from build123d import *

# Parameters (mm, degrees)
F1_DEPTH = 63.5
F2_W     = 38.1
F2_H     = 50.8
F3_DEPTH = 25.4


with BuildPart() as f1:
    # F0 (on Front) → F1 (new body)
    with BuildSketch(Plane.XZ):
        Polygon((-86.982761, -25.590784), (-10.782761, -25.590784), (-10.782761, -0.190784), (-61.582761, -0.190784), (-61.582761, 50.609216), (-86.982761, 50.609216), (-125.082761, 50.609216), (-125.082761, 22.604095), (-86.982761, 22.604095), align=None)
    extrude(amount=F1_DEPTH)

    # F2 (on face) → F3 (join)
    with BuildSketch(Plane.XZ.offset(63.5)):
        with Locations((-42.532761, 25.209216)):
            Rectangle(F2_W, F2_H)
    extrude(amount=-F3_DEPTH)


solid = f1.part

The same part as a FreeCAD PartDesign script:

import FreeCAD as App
import Part
import Sketcher

V = App.Vector
Q = App.Units.Quantity

doc = App.newDocument("Part")
body = doc.addObject("PartDesign::Body", "Body")

# Sketch on XZ plane
sketch1 = body.newObject("Sketcher::SketchObject", "Sketch")
sketch1.AttachmentSupport = (doc.getObject("XZ_Plane"), [""])
sketch1.MapMode = "FlatFace"
sketch1.addGeometry([
    Part.LineSegment(V(-87, -26, 0), V(-11, -26, 0)),  # 0
    Part.LineSegment(V(-11, -26, 0), V(-11, 0, 0)),  # 1
    Part.LineSegment(V(-11, 0, 0), V(-62, 0, 0)),  # 2
    Part.LineSegment(V(-62, 0, 0), V(-62, 51, 0)),  # 3
    Part.LineSegment(V(-62, 51, 0), V(-125, 51, 0)),  # 4
    Part.LineSegment(V(-125, 51, 0), V(-125, 23, 0)),  # 5
    Part.LineSegment(V(-125, 23, 0), V(-87, 23, 0)),  # 6
    Part.LineSegment(V(-87, 23, 0), V(-87, -26, 0)),  # 7
], False)
sketch1.addConstraint([
    Sketcher.Constraint("Coincident", 0, 2, 1, 1),
    Sketcher.Constraint("Coincident", 1, 2, 2, 1),
    Sketcher.Constraint("Coincident", 2, 2, 3, 1),
    Sketcher.Constraint("Coincident", 3, 2, 4, 1),
    Sketcher.Constraint("Coincident", 4, 2, 5, 1),
    Sketcher.Constraint("Coincident", 5, 2, 6, 1),
    Sketcher.Constraint("Coincident", 6, 2, 7, 1),
    Sketcher.Constraint("Coincident", 7, 2, 0, 1),
    Sketcher.Constraint("Horizontal", 0),
    Sketcher.Constraint("Vertical", 1),
    Sketcher.Constraint("Horizontal", 2),
    Sketcher.Constraint("Vertical", 3),
    Sketcher.Constraint("Horizontal", 4),
    Sketcher.Constraint("Vertical", 5),
    Sketcher.Constraint("Horizontal", 6),
    Sketcher.Constraint("Vertical", 7),
    Sketcher.Constraint("Equal", 2, 3),
    Sketcher.Constraint("DistanceX", 0, 1, 0, 2, Q("3 in")),
    Sketcher.Constraint("DistanceX", 2, 2, 2, 1, Q("2 in")),
    Sketcher.Constraint("DistanceY", 1, 1, 1, 2, Q("1 in")),
    Sketcher.Constraint("DistanceX", 4, 2, 4, 1, Q("2.5 in")),
    Sketcher.Constraint("DistanceY", 5, 2, 5, 1, 28.005121),
    Sketcher.Constraint("DistanceX", 0, 2, -1, 1, 10.782761),
    Sketcher.Constraint("DistanceY", 0, 2, -1, 1, 25.590784),
])
pad1 = body.newObject("PartDesign::Pad", "Pad")
pad1.Profile = sketch1
pad1.Length = Q("2.5 in")

# Sketch on XZ plane
sketch2 = body.newObject("Sketcher::SketchObject", "Sketch001")
sketch2.AttachmentSupport = (doc.getObject("XZ_Plane"), [""])
sketch2.MapMode = "FlatFace"
sketch2.AttachmentOffset = App.Placement(V(0, 0, 2.5 * 25.4), App.Rotation())
sketch2.addGeometry([
    Part.LineSegment(V(-62, 51, 0), V(-62, 0, 0)),
    Part.LineSegment(V(-62, 0, 0), V(-23, 0, 0)),
    Part.LineSegment(V(-23, 0, 0), V(-23, 51, 0)),
    Part.LineSegment(V(-23, 51, 0), V(-62, 51, 0)),
], False)
sketch2.addConstraint([
    Sketcher.Constraint("Coincident", 0, 2, 1, 1),
    Sketcher.Constraint("Coincident", 1, 2, 2, 1),
    Sketcher.Constraint("Coincident", 2, 2, 3, 1),
    Sketcher.Constraint("Coincident", 3, 2, 0, 1),
    Sketcher.Constraint("Vertical", 0),
    Sketcher.Constraint("Horizontal", 1),
    Sketcher.Constraint("Vertical", 2),
    Sketcher.Constraint("Horizontal", 3),
    Sketcher.Constraint("DistanceY", 0, 2, 0, 1, Q("2 in")),
    Sketcher.Constraint("DistanceX", 1, 1, 1, 2, Q("1.5 in")),
    Sketcher.Constraint("DistanceX", 0, 2, -1, 1, 61.582761),
    Sketcher.Constraint("DistanceY", 0, 2, -1, 1, 0.190784),
])
pad2 = body.newObject("PartDesign::Pad", "Pad001")
pad2.Profile = sketch2
pad2.Length = Q("1 in")
pad2.Reversed = True

doc.recompute()
